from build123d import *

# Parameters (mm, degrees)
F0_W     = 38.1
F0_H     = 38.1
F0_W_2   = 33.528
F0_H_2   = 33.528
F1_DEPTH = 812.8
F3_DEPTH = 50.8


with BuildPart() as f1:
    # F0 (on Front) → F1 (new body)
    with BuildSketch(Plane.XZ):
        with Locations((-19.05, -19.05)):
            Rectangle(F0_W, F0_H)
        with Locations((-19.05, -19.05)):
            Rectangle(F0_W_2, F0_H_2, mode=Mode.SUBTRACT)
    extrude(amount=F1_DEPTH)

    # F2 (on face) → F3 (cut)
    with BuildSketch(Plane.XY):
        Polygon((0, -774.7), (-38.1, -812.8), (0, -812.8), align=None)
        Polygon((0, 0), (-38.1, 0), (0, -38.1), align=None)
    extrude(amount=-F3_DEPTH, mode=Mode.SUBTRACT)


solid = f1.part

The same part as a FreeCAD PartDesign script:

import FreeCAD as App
import Part
import Sketcher
from FreeCAD import Vector
Q = App.Units.Quantity

doc = App.newDocument("Part")
body = doc.addObject("PartDesign::Body", "Body")

# Sketch on XZ plane
sketch1 = doc.addObject("Sketcher::SketchObject", "Sketch")
body.addObject(sketch1)
sketch1.AttachmentSupport = (doc.XZ_Plane, [""])
sketch1.MapMode = "FlatFace"
sketch1.addGeometry([
    Part.LineSegment(Vector(-38, 0, 0), Vector(-38, -38, 0)),  # 0
    Part.LineSegment(Vector(-38, -38, 0), Vector(0, -38, 0)),  # 1
    Part.LineSegment(Vector(0, -38, 0), Vector(0, 0, 0)),  # 2
    Part.LineSegment(Vector(0, 0, 0), Vector(-38, 0, 0)),  # 3
    Part.LineSegment(Vector(-2, -36, 0), Vector(-36, -36, 0)),  # 4
    Part.LineSegment(Vector(-36, -36, 0), Vector(-36, -2, 0)),  # 5
    Part.LineSegment(Vector(-36, -2, 0), Vector(-2, -2, 0)),  # 6
    Part.LineSegment(Vector(-2, -2, 0), Vector(-2, -36, 0)),  # 7
], False)
sketch1.addConstraint([
    Sketcher.Constraint("Coincident", 0, 2, 1, 1),
    Sketcher.Constraint("Coincident", 1, 2, 2, 1),
    Sketcher.Constraint("Coincident", 2, 2, 3, 1),
    Sketcher.Constraint("Coincident", 3, 2, 0, 1),
    Sketcher.Constraint("Coincident", 4, 2, 5, 1),
    Sketcher.Constraint("Coincident", 5, 2, 6, 1),
    Sketcher.Constraint("Coincident", 6, 2, 7, 1),
    Sketcher.Constraint("Coincident", 7, 2, 4, 1),
    Sketcher.Constraint("Vertical", 0),
    Sketcher.Constraint("Horizontal", 1),
    Sketcher.Constraint("Vertical", 2),
    Sketcher.Constraint("Horizontal", 3),
    Sketcher.Constraint("Horizontal", 4),
    Sketcher.Constraint("Vertical", 5),
    Sketcher.Constraint("Horizontal", 6),
    Sketcher.Constraint("Vertical", 7),
    Sketcher.Constraint("Coincident", 2, 2, -1, 1),
    Sketcher.Constraint("Equal", 3, 0),
    Sketcher.Constraint("Equal", 6, 5),
    Sketcher.Constraint("DistanceX", 1, 1, 1, 2, Q("1.5 in")),
    Sketcher.Constraint("DistanceX", 4, 2, 4, 1, Q("1.32 in")),
    Sketcher.Constraint("DistanceX", 4, 2, -1, 1, Q("1.41 in")),
    Sketcher.Constraint("DistanceY", 4, 2, -1, 1, Q("1.41 in")),
])
pad1 = doc.addObject("PartDesign::Pad", "Pad")
body.addObject(pad1)
pad1.Profile = sketch1
pad1.Length = Q("32 in")

# Sketch on XY plane
sketch2 = doc.addObject("Sketcher::SketchObject", "Sketch001")
body.addObject(sketch2)
sketch2.AttachmentSupport = (doc.XY_Plane, [""])
sketch2.MapMode = "FlatFace"
sketch2.addGeometry([
    Part.LineSegment(Vector(0, -775, 0), Vector(-38, -813, 0)),  # 0
    Part.LineSegment(Vector(-38, -813, 0), Vector(0, -813, 0)),  # 1
    Part.LineSegment(Vector(0, -813, 0), Vector(0, -775, 0)),  # 2
    Part.LineSegment(Vector(0, 0, 0), Vector(-38, 0, 0)),  # 3
    Part.LineSegment(Vector(-38, 0, 0), Vector(0, -38, 0)),  # 4
    Part.LineSegment(Vector(0, -38, 0), Vector(0, 0, 0)),  # 5
], False)
sketch2.addConstraint([
    Sketcher.Constraint("Coincident", 0, 2, 1, 1),
    Sketcher.Constraint("Coincident", 1, 2, 2, 1),
    Sketcher.Constraint("Coincident", 2, 2, 0, 1),
    Sketcher.Constraint("Coincident", 3, 2, 4, 1),
    Sketcher.Constraint("Coincident", 4, 2, 5, 1),
    Sketcher.Constraint("Coincident", 5, 2, 3, 1),
    Sketcher.Constraint("Horizontal", 1),
    Sketcher.Constraint("Vertical", 2),
    Sketcher.Constraint("Horizontal", 3),
    Sketcher.Constraint("Vertical", 5),
    Sketcher.Constraint("Coincident", 5, 2, -1, 1),
    Sketcher.Constraint("PointOnObject", 1, 2, -2),
    Sketcher.Constraint("Perpendicular", 0, 4),
    Sketcher.Constraint("Vertical", 0, 2, 3, 2),
    Sketcher.Constraint("Equal", 3, 2),
    Sketcher.Constraint("DistanceX", 1, 1, 1, 2, Q("1.5 in")),
    Sketcher.Constraint("DistanceY", 0, 2, -1, 1, Q("32 in")),
])
pocket1 = doc.addObject("PartDesign::Pocket", "Pocket")
body.addObject(pocket1)
pocket1.Profile = sketch2
pocket1.Length = Q("2 in")

doc.recompute()
